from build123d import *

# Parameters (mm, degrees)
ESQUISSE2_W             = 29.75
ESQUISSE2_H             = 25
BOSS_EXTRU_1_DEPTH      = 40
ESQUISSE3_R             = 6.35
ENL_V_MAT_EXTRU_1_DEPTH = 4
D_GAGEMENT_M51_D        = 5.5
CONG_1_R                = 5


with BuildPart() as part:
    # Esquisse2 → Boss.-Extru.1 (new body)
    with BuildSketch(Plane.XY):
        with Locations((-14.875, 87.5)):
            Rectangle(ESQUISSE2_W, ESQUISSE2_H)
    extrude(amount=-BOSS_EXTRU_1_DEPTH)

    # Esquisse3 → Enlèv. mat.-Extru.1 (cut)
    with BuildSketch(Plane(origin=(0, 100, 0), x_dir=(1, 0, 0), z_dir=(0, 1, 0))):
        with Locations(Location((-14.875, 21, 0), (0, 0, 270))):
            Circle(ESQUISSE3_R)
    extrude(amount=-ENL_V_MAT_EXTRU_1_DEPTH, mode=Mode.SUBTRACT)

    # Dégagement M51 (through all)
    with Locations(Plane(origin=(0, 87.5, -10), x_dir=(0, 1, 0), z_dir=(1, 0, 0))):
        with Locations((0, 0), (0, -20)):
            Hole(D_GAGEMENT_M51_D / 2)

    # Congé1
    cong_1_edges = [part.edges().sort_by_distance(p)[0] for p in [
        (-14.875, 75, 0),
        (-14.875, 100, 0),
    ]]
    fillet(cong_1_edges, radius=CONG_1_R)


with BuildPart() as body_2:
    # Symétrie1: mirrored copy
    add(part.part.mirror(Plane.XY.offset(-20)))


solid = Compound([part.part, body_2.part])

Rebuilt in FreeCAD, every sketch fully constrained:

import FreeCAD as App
import Part
import Sketcher

V = App.Vector


def edges_at(feature, points):
    """Names of the edges that pass closest to the given points."""
    edges = feature.Shape.Edges
    near = lambda p: min(range(len(edges)), key=lambda i: edges[i].distToShape(Part.Vertex(*p))[0])
    return sorted({f"Edge{near(p) + 1}" for p in points})


def add_polygon(sketch, points):
    """Adds a closed chain of lines whose ends are joined by coincident constraints."""
    first, n = sketch.GeometryCount, len(points)
    for a, b in zip(points, points[1:] + points[:1]):
        sketch.addGeometry(Part.LineSegment(App.Vector(*a, 0), App.Vector(*b, 0)), False)
    for i in range(n):
        sketch.addConstraint(Sketcher.Constraint("Coincident", first + i, 2, first + (i + 1) % n, 1))

doc = App.newDocument("Part")
body = doc.addObject("PartDesign::Body", "Body")

# Sketch on XY plane
sketch1 = body.newObject("Sketcher::SketchObject", "Sketch")
sketch1.AttachmentSupport = (doc.getObject("XY_Plane"), [""])
sketch1.MapMode = "FlatFace"
add_polygon(sketch1, [(-29.75, 100), (-29.75, 75), (0, 75), (0, 100)])  # lines 0-3
sketch1.addConstraint(Sketcher.Constraint("Vertical", 0))
sketch1.addConstraint(Sketcher.Constraint("Horizontal", 1))
sketch1.addConstraint(Sketcher.Constraint("Vertical", 2))
sketch1.addConstraint(Sketcher.Constraint("Horizontal", 3))
sketch1.addConstraint(Sketcher.Constraint("PointOnObject", 1, 2, -2))
sketch1.addConstraint(Sketcher.Constraint("DistanceY", 0, 2, 0, 1, 25.0))
sketch1.addConstraint(Sketcher.Constraint("DistanceY", -1, 1, 0, 2, 75.0))
sketch1.addConstraint(Sketcher.Constraint("DistanceX", 1, 1, 1, 2, 29.75))
pad1 = body.newObject("PartDesign::Pad", "Pad")
pad1.Profile = sketch1
pad1.Length = 40
pad1.Reversed = True

# Sketch on XZ plane
sketch2 = body.newObject("Sketcher::SketchObject", "Sketch001")
sketch2.AttachmentSupport = (doc.getObject("XZ_Plane"), [""])
sketch2.MapMode = "FlatFace"
sketch2.AttachmentOffset = App.Placement(V(0, 0, -100), App.Rotation())
sketch2.addGeometry(Part.Circle(V(-14.875, -21, 0), V(0, 0, 1), 6.35), False)
sketch2.addConstraint(Sketcher.Constraint("Diameter", 0, 12.7))
sketch2.addConstraint(Sketcher.Constraint("DistanceY", 0, 3, -1, 1, 21.0))
sketch2.addConstraint(Sketcher.Constraint("DistanceX", 0, 3, -1, 1, 14.875))
pocket1 = body.newObject("PartDesign::Pocket", "Pocket")
pocket1.Profile = sketch2
pocket1.Length = 4
pocket1.Reversed = True

# Sketch on YZ plane
sketch3 = body.newObject("Sketcher::SketchObject", "Sketch002")
sketch3.AttachmentSupport = (doc.getObject("YZ_Plane"), [""])
sketch3.MapMode = "FlatFace"
sketch3.addGeometry(Part.Circle(V(87.5, -10, 0), V(0, 0, 1), 2.75), False)
sketch3.addGeometry(Part.Circle(V(87.5, -30, 0), V(0, 0, 1), 2.75), False)
sketch3.addConstraint(Sketcher.Constraint("Equal", 0, 1))
sketch3.addConstraint(Sketcher.Constraint("Vertical", 0, 3, 1, 3))
sketch3.addConstraint(Sketcher.Constraint("Diameter", 0, 5.5))
sketch3.addConstraint(Sketcher.Constraint("DistanceY", 0, 3, -1, 1, 10.0))
sketch3.addConstraint(Sketcher.Constraint("DistanceY", 1, 3, -1, 1, 30.0))
sketch3.addConstraint(Sketcher.Constraint("DistanceX", -1, 1, 0, 3, 87.5))
doc.recompute()
hole = body.newObject("PartDesign::Hole", "Hole")
hole.Profile = sketch3
hole.ThreadType = "None"
hole.Diameter = 5.5
hole.DepthType = "ThroughAll"
doc.recompute()

fillet = body.newObject("PartDesign::Fillet", "Fillet")
fillet.Base = (hole, edges_at(hole, [(-14.875, 75, 0), (-14.875, 100, 0)]))
fillet.Radius = 5
body2 = doc.addObject("PartDesign::Body", "Body001")
doc.recompute()

mirroring = doc.addObject("Part::Mirroring", "Mirroring")
mirroring.Source = body
mirroring.Base = V(0, 0, -20)
mirroring.Normal = V(0, 0, 1)
body2.BaseFeature = mirroring
doc.recompute()
mirroring.Visibility = False

doc.recompute()
